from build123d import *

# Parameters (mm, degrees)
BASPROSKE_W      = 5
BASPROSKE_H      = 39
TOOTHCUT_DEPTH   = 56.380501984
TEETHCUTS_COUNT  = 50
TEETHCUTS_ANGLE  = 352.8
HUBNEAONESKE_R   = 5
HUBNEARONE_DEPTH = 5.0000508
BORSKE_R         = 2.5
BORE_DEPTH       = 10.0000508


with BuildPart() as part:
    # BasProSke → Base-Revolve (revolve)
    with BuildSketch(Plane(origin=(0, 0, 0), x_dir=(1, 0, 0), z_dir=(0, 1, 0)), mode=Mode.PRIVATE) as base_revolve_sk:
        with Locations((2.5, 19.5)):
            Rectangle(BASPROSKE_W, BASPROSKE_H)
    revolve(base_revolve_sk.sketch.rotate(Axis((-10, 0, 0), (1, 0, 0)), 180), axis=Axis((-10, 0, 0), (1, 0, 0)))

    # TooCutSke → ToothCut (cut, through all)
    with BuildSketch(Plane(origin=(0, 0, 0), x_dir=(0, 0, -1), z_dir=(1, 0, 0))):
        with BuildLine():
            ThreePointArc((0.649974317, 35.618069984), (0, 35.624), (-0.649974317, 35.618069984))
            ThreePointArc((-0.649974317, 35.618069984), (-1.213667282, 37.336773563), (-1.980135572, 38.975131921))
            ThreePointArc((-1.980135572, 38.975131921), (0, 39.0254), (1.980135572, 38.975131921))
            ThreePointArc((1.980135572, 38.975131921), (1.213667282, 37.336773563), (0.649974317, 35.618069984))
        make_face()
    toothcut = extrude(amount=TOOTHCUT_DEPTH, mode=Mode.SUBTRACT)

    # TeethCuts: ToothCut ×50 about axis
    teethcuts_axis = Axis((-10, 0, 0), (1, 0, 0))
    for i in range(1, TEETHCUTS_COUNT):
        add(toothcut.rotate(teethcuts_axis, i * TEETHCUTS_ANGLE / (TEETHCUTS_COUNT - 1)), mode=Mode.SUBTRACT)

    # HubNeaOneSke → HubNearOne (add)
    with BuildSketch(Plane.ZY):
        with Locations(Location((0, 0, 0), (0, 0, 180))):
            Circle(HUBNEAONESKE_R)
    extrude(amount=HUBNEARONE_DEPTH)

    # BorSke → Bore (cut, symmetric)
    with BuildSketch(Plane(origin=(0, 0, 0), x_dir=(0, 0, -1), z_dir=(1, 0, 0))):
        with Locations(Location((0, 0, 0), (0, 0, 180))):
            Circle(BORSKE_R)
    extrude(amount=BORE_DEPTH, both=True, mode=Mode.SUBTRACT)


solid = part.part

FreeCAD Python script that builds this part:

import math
import FreeCAD as App
import Part
import Sketcher
Q = App.Units.Quantity


def add_polygon(sketch, points):
    """Adds a closed chain of lines whose ends are joined by coincident constraints."""
    first, n = sketch.GeometryCount, len(points)
    for a, b in zip(points, points[1:] + points[:1]):
        sketch.addGeometry(Part.LineSegment(App.Vector(*a, 0), App.Vector(*b, 0)), False)
    for i in range(n):
        sketch.addConstraint(Sketcher.Constraint("Coincident", first + i, 2, first + (i + 1) % n, 1))

doc = App.newDocument("Part")
body = doc.addObject("PartDesign::Body", "Body")

# Sketch on XZ plane
sketch1 = body.newObject("Sketcher::SketchObject", "Sketch")
sketch1.AttachmentSupport = (doc.getObject("XZ_Plane"), [""])
sketch1.MapMode = "FlatFace"
add_polygon(sketch1, [(0, -39), (0, 0), (5, 0), (5, -39)])  # lines 0-3
sketch1.addConstraint([
    Sketcher.Constraint("Vertical", 0),
    Sketcher.Constraint("Horizontal", 1),
    Sketcher.Constraint("Vertical", 2),
    Sketcher.Constraint("Horizontal", 3),
    Sketcher.Constraint("Coincident", 0, 2, -1, 1),
    Sketcher.Constraint("DistanceX", 1, 1, 1, 2, Q("5 mm")),
    Sketcher.Constraint("DistanceY", 0, 1, 0, 2, Q("39 mm")),
])
revolution = body.newObject("PartDesign::Revolution", "Revolution")
revolution.Profile = sketch1
revolution.ReferenceAxis = (sketch1, ["H_Axis"])
revolution.Angle = 360

# Sketch on YZ plane
sketch2 = body.newObject("Sketcher::SketchObject", "Sketch001")
sketch2.AttachmentSupport = (doc.getObject("YZ_Plane"), [""])
sketch2.MapMode = "FlatFace"
sketch2.addGeometry([
    Part.ArcOfCircle(Part.Circle(App.Vector(0, 0, 0), App.Vector(0, 0, 1), 35.624), math.radians(-1.045443), math.radians(1.045443)),
    Part.ArcOfCircle(Part.Circle(App.Vector(31.811291, -15.158883, 0), App.Vector(0, 0, 1), 15), math.radians(61.471922), math.radians(75.298383)),
    Part.ArcOfCircle(Part.Circle(App.Vector(0, 0, 0), App.Vector(0, 0, 1), 39.0254), math.radians(-2.908417), math.radians(2.908417)),
    Part.ArcOfCircle(Part.Circle(App.Vector(31.811291, 15.158883, 0), App.Vector(0, 0, 1), 15), math.radians(-75.298383), math.radians(-61.471922)),
], False)
sketch2.addConstraint([
    Sketcher.Constraint("Coincident", 0, 1, 1, 2),
    Sketcher.Constraint("Coincident", 1, 1, 2, 1),
    Sketcher.Constraint("Coincident", 2, 2, 3, 2),
    Sketcher.Constraint("Coincident", 3, 1, 0, 2),
    Sketcher.Constraint("Coincident", 0, 3, -1, 1),
    Sketcher.Constraint("Coincident", 2, 3, -1, 1),
    Sketcher.Constraint("Equal", 1, 3),
    Sketcher.Constraint("Symmetric", 1, 3, 3, 3, -1),
    Sketcher.Constraint("Radius", 1, Q("15 mm")),
    Sketcher.Constraint("Radius", 0, Q("35.624 mm")),
    Sketcher.Constraint("Radius", 2, Q("39.0254 mm")),
    Sketcher.Constraint("DistanceX", -1, 1, 1, 3, Q("31.811291 mm")),
    Sketcher.Constraint("DistanceX", -1, 1, 0, 1, Q("35.61807 mm")),
])
pocket1 = body.newObject("PartDesign::Pocket", "Pocket")
pocket1.Profile = sketch2
pocket1.Type = "ThroughAll"
pocket1.Reversed = True
doc.recompute()

polarpattern = body.newObject("PartDesign::PolarPattern", "PolarPattern")
polarpattern.Originals = [pocket1]
polarpattern.Axis = (doc.getObject("X_Axis"), [""])
polarpattern.Angle = 360
polarpattern.Occurrences = 50
body.Tip = polarpattern

# Sketch on YZ plane
sketch3 = body.newObject("Sketcher::SketchObject", "Sketch002")
sketch3.AttachmentSupport = (doc.getObject("YZ_Plane"), [""])
sketch3.MapMode = "FlatFace"
sketch3.addGeometry(Part.Circle(App.Vector(0, 0, 0), App.Vector(0, 0, 1), 5), False)
sketch3.addConstraint([
    Sketcher.Constraint("Coincident", 0, 3, -1, 1),
    Sketcher.Constraint("Diameter", 0, Q("10 mm")),
])
pad1 = body.newObject("PartDesign::Pad", "Pad")
pad1.Profile = sketch3
pad1.Length = 5.000051
pad1.Reversed = True

# Sketch on YZ plane
sketch4 = body.newObject("Sketcher::SketchObject", "Sketch003")
sketch4.AttachmentSupport = (doc.getObject("YZ_Plane"), [""])
sketch4.MapMode = "FlatFace"
sketch4.addGeometry(Part.Circle(App.Vector(0, 0, 0), App.Vector(0, 0, 1), 2.5), False)
sketch4.addConstraint([
    Sketcher.Constraint("Coincident", 0, 3, -1, 1),
    Sketcher.Constraint("Diameter", 0, Q("5 mm")),
])
pocket2 = body.newObject("PartDesign::Pocket", "Pocket001")
pocket2.Profile = sketch4
pocket2.Length = 20.000102
pocket2.Midplane = True

doc.recompute()
